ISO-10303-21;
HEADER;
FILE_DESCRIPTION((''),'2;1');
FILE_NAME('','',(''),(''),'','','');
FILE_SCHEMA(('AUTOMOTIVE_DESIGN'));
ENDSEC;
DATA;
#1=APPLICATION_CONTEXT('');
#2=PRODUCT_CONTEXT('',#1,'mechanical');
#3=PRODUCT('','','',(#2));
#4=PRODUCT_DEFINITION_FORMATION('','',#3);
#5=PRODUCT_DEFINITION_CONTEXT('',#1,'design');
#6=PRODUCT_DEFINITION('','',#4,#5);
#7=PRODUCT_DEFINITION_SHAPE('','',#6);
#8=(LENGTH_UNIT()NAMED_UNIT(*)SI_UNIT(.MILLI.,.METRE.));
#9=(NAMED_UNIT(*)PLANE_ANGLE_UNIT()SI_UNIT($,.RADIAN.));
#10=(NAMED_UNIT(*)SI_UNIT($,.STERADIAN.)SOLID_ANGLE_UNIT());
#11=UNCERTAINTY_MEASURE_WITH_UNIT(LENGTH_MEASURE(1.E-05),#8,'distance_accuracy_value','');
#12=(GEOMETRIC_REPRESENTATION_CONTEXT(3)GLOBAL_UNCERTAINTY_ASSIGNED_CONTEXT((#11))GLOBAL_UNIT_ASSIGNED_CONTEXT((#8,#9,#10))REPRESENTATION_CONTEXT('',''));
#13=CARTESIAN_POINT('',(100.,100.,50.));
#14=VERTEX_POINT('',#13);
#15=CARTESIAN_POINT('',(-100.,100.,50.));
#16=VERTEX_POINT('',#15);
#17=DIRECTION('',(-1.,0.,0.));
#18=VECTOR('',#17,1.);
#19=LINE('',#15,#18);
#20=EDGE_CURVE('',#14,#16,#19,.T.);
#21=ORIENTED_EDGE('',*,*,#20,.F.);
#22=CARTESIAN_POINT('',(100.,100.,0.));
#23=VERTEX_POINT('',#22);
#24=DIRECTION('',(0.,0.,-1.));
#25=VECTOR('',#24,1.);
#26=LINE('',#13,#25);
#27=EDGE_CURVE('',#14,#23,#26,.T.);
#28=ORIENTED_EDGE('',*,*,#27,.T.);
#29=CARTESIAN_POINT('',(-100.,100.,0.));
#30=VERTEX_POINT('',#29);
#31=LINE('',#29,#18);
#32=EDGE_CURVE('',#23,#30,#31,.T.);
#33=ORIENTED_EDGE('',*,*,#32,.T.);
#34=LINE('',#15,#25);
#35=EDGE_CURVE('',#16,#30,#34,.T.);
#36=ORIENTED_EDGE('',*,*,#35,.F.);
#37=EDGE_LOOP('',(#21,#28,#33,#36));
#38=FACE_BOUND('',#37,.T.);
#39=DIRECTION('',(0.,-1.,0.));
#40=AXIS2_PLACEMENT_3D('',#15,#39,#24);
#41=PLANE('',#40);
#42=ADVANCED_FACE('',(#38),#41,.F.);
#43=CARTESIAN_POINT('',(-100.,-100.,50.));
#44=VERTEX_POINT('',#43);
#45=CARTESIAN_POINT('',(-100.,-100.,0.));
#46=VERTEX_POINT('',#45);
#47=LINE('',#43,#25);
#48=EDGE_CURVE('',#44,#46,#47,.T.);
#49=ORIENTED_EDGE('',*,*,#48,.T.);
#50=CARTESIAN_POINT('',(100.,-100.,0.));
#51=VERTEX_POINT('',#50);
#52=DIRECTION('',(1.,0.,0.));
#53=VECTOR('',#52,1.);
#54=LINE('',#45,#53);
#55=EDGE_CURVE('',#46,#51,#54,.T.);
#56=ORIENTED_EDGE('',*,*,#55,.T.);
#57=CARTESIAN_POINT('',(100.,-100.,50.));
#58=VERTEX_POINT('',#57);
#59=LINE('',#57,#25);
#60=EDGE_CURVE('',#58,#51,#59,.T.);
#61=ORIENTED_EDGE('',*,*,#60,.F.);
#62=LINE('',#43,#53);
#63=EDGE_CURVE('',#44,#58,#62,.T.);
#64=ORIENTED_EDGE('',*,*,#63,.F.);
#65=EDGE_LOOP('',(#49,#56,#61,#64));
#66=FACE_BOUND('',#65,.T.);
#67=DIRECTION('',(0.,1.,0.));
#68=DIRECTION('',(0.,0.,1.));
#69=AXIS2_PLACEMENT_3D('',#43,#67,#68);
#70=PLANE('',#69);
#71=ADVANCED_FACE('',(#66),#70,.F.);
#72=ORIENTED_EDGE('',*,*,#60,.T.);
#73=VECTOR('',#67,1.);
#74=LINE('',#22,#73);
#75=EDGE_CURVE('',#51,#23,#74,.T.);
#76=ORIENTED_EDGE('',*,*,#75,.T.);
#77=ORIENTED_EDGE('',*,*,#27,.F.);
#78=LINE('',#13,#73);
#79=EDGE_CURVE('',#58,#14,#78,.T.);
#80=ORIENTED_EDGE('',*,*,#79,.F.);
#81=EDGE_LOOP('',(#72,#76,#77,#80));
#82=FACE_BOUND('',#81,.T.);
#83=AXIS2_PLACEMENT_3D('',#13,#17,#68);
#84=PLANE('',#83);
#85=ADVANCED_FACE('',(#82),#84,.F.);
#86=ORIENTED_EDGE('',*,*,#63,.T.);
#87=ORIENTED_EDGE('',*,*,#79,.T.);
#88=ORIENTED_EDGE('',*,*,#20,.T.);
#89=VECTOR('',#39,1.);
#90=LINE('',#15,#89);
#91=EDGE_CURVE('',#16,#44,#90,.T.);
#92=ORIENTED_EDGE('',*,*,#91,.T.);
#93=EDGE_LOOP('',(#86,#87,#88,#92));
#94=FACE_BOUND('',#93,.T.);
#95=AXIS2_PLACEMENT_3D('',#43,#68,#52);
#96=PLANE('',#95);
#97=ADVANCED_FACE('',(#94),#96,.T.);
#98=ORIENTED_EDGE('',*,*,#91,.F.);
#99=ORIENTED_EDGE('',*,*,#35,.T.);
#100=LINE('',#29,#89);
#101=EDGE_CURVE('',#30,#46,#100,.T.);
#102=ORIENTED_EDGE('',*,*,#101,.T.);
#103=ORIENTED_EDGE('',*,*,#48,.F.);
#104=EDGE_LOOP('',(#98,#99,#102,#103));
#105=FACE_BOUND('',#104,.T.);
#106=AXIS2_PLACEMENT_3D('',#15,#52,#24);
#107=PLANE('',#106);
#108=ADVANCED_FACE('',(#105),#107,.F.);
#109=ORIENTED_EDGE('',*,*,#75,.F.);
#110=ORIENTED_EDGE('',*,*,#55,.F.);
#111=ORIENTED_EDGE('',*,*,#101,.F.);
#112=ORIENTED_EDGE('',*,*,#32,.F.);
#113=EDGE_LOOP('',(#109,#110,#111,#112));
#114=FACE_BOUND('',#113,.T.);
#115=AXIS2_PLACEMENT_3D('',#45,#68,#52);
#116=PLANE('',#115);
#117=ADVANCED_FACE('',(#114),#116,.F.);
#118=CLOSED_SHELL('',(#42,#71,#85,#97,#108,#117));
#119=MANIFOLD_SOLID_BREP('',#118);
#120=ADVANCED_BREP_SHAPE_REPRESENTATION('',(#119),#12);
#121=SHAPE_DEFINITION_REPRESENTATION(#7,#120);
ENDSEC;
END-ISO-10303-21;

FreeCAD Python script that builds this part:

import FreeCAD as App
import Part
import Sketcher

V = App.Vector


def add_polygon(sketch, points):
    """Adds a closed chain of lines whose ends are joined by coincident constraints."""
    first, n = sketch.GeometryCount, len(points)
    for a, b in zip(points, points[1:] + points[:1]):
        sketch.addGeometry(Part.LineSegment(App.Vector(*a, 0), App.Vector(*b, 0)), False)
    for i in range(n):
        sketch.addConstraint(Sketcher.Constraint("Coincident", first + i, 2, first + (i + 1) % n, 1))

doc = App.newDocument("Part")
body = doc.addObject("PartDesign::Body", "Body")

# Sketch on XY plane
sketch1 = body.newObject("Sketcher::SketchObject", "Sketch")
sketch1.AttachmentSupport = (doc.getObject("XY_Plane"), [""])
sketch1.MapMode = "FlatFace"
add_polygon(sketch1, [(-100, 100), (-100, -100), (100, -100), (100, 100)])  # lines 0-3
sketch1.addConstraint([
    Sketcher.Constraint("Vertical", 0),
    Sketcher.Constraint("Horizontal", 1),
    Sketcher.Constraint("Vertical", 2),
    Sketcher.Constraint("Horizontal", 3),
    Sketcher.Constraint("Symmetric", 0, 2, 2, 2, -1, 1),
    Sketcher.Constraint("Equal", 3, 0),
    Sketcher.Constraint("DistanceX", 1, 1, 1, 2, 200.0),
])
pad1 = body.newObject("PartDesign::Pad", "Pad")
pad1.Profile = sketch1
pad1.Length = 50

doc.recompute()
